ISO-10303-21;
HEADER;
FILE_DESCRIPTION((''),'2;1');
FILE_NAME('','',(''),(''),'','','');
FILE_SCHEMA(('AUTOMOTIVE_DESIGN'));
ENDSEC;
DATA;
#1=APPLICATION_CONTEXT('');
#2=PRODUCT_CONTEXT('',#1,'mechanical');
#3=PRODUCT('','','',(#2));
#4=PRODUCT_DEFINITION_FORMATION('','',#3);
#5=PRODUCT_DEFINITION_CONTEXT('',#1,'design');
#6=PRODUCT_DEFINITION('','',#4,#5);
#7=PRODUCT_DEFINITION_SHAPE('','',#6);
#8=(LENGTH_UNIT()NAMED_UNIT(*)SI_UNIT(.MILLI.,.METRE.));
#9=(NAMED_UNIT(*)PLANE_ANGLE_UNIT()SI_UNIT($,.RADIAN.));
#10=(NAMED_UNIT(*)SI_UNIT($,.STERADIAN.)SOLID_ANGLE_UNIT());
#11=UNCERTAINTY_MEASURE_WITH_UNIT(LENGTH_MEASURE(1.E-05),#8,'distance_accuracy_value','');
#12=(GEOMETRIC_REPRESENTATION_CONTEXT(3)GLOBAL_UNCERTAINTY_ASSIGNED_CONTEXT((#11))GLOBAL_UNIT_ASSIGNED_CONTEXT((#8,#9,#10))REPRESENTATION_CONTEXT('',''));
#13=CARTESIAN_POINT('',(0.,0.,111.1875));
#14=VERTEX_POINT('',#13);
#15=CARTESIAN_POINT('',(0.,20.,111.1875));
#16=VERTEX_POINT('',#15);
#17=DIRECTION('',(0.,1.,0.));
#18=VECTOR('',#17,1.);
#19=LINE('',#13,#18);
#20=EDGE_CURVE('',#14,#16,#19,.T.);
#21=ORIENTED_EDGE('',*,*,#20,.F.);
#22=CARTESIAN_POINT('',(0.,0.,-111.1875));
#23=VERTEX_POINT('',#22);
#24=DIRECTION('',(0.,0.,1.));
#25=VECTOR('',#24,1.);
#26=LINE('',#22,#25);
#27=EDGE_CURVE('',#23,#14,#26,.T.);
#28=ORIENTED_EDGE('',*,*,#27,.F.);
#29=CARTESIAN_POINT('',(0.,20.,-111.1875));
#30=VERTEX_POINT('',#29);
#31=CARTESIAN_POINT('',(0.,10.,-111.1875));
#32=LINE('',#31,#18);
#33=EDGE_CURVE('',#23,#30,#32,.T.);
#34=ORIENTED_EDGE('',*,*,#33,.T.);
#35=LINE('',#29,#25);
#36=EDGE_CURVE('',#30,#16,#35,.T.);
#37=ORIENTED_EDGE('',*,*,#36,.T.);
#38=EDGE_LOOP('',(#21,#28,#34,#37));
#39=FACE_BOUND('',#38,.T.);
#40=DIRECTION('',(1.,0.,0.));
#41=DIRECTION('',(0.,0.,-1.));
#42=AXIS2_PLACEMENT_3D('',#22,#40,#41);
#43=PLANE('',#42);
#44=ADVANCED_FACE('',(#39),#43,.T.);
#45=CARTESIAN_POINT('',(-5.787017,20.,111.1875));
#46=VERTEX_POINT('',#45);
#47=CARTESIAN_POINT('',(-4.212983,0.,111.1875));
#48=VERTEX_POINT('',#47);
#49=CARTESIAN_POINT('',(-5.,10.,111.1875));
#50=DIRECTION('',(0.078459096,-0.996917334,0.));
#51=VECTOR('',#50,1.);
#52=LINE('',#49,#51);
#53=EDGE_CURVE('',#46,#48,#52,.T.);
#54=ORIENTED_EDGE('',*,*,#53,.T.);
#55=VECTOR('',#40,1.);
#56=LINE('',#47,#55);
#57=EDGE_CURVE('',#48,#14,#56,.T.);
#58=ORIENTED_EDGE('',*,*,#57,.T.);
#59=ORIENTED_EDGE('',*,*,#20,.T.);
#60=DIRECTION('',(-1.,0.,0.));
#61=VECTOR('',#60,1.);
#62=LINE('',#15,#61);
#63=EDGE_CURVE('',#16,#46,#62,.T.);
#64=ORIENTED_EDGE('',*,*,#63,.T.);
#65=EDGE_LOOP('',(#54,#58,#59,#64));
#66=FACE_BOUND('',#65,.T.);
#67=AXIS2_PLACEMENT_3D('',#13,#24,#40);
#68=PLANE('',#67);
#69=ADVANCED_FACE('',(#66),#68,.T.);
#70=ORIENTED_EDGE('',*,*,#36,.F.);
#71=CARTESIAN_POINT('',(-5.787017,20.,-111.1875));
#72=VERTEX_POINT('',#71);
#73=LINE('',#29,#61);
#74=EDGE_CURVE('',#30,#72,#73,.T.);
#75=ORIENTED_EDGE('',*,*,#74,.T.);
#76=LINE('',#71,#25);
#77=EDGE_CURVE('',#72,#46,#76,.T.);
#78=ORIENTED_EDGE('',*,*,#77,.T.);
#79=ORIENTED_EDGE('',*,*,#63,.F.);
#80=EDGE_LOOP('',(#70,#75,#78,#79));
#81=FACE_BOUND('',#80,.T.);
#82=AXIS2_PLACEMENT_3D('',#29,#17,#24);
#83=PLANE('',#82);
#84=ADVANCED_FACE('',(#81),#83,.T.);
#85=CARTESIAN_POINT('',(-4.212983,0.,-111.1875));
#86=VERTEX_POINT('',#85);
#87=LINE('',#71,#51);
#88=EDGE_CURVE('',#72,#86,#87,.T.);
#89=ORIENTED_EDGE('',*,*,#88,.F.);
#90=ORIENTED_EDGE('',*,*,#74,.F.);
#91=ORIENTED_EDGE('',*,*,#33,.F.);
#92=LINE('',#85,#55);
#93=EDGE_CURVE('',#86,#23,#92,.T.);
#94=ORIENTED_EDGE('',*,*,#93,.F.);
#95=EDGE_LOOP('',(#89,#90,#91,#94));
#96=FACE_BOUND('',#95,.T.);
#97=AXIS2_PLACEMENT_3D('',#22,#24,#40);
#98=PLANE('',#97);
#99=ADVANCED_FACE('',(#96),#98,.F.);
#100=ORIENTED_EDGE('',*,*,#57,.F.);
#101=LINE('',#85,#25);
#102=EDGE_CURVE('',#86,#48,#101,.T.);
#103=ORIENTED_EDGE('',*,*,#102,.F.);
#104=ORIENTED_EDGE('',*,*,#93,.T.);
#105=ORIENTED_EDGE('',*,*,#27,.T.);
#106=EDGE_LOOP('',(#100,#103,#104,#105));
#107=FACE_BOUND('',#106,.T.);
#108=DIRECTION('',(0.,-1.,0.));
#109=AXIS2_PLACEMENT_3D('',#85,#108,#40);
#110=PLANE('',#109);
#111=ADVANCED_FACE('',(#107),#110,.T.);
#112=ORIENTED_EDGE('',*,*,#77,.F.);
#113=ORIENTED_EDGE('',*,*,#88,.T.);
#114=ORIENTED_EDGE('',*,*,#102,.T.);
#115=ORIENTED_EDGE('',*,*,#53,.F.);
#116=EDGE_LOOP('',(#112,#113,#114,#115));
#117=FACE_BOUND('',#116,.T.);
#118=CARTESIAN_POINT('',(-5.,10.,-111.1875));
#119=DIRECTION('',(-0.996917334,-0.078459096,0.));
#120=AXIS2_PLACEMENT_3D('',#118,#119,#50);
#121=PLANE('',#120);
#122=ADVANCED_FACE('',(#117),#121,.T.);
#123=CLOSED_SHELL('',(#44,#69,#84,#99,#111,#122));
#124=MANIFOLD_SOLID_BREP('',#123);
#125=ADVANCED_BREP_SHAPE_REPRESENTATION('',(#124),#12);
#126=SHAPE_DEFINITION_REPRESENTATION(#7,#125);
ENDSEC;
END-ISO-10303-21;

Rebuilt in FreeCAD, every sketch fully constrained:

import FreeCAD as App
import Part
import Sketcher
from FreeCAD import Vector
Q = App.Units.Quantity


def add_polygon(sketch, points):
    """Adds a closed chain of lines whose ends are joined by coincident constraints."""
    first, n = sketch.GeometryCount, len(points)
    for a, b in zip(points, points[1:] + points[:1]):
        sketch.addGeometry(Part.LineSegment(App.Vector(*a, 0), App.Vector(*b, 0)), False)
    for i in range(n):
        sketch.addConstraint(Sketcher.Constraint("Coincident", first + i, 2, first + (i + 1) % n, 1))

doc = App.newDocument("Part")
params = doc.addObject("Spreadsheet::Sheet", "Params")
for row, (alias, value) in enumerate([
    ("sketch1_height", "20 mm"),
    ("pad1_length", "222.375 mm"),
], start=1):
    params.set(f"A{row}", alias)
    params.set(f"B{row}", "=" + value)
    params.setAlias(f"B{row}", alias)

body = doc.addObject("PartDesign::Body", "Body")

sketch1 = body.newObject("Sketcher::SketchObject", "Sketch")
sketch1.AttachmentSupport = (doc.getObject("XY_Plane"), [""])
sketch1.MapMode = "FlatFace"
add_polygon(sketch1, [(-4.2, 0), (0, 0), (0, 20), (-5.8, 20)])
sketch1.addConstraint(Sketcher.Constraint("Horizontal", 0))
sketch1.addConstraint(Sketcher.Constraint("Vertical", 1))
sketch1.addConstraint(Sketcher.Constraint("Horizontal", 2))
sketch1.addConstraint(Sketcher.Constraint("Coincident", 0, 2, -1, 1))
sketch1.addConstraint(Sketcher.Constraint("DistanceY", 1, 1, 1, 2, 20.0))
sketch1.addConstraint(Sketcher.Constraint("Angle", 3, Q("-85.5 deg")))
sketch1.addConstraint(Sketcher.Constraint("DistanceX", 0, 1, 0, 2, 4.212983))
sketch1.setExpression("Constraints[8]", "Params.sketch1_height")
pad1 = body.newObject("PartDesign::Pad", "Pad")
pad1.Profile = sketch1
pad1.setExpression("Length", "Params.pad1_length")
pad1.Midplane = True

doc.recompute()
